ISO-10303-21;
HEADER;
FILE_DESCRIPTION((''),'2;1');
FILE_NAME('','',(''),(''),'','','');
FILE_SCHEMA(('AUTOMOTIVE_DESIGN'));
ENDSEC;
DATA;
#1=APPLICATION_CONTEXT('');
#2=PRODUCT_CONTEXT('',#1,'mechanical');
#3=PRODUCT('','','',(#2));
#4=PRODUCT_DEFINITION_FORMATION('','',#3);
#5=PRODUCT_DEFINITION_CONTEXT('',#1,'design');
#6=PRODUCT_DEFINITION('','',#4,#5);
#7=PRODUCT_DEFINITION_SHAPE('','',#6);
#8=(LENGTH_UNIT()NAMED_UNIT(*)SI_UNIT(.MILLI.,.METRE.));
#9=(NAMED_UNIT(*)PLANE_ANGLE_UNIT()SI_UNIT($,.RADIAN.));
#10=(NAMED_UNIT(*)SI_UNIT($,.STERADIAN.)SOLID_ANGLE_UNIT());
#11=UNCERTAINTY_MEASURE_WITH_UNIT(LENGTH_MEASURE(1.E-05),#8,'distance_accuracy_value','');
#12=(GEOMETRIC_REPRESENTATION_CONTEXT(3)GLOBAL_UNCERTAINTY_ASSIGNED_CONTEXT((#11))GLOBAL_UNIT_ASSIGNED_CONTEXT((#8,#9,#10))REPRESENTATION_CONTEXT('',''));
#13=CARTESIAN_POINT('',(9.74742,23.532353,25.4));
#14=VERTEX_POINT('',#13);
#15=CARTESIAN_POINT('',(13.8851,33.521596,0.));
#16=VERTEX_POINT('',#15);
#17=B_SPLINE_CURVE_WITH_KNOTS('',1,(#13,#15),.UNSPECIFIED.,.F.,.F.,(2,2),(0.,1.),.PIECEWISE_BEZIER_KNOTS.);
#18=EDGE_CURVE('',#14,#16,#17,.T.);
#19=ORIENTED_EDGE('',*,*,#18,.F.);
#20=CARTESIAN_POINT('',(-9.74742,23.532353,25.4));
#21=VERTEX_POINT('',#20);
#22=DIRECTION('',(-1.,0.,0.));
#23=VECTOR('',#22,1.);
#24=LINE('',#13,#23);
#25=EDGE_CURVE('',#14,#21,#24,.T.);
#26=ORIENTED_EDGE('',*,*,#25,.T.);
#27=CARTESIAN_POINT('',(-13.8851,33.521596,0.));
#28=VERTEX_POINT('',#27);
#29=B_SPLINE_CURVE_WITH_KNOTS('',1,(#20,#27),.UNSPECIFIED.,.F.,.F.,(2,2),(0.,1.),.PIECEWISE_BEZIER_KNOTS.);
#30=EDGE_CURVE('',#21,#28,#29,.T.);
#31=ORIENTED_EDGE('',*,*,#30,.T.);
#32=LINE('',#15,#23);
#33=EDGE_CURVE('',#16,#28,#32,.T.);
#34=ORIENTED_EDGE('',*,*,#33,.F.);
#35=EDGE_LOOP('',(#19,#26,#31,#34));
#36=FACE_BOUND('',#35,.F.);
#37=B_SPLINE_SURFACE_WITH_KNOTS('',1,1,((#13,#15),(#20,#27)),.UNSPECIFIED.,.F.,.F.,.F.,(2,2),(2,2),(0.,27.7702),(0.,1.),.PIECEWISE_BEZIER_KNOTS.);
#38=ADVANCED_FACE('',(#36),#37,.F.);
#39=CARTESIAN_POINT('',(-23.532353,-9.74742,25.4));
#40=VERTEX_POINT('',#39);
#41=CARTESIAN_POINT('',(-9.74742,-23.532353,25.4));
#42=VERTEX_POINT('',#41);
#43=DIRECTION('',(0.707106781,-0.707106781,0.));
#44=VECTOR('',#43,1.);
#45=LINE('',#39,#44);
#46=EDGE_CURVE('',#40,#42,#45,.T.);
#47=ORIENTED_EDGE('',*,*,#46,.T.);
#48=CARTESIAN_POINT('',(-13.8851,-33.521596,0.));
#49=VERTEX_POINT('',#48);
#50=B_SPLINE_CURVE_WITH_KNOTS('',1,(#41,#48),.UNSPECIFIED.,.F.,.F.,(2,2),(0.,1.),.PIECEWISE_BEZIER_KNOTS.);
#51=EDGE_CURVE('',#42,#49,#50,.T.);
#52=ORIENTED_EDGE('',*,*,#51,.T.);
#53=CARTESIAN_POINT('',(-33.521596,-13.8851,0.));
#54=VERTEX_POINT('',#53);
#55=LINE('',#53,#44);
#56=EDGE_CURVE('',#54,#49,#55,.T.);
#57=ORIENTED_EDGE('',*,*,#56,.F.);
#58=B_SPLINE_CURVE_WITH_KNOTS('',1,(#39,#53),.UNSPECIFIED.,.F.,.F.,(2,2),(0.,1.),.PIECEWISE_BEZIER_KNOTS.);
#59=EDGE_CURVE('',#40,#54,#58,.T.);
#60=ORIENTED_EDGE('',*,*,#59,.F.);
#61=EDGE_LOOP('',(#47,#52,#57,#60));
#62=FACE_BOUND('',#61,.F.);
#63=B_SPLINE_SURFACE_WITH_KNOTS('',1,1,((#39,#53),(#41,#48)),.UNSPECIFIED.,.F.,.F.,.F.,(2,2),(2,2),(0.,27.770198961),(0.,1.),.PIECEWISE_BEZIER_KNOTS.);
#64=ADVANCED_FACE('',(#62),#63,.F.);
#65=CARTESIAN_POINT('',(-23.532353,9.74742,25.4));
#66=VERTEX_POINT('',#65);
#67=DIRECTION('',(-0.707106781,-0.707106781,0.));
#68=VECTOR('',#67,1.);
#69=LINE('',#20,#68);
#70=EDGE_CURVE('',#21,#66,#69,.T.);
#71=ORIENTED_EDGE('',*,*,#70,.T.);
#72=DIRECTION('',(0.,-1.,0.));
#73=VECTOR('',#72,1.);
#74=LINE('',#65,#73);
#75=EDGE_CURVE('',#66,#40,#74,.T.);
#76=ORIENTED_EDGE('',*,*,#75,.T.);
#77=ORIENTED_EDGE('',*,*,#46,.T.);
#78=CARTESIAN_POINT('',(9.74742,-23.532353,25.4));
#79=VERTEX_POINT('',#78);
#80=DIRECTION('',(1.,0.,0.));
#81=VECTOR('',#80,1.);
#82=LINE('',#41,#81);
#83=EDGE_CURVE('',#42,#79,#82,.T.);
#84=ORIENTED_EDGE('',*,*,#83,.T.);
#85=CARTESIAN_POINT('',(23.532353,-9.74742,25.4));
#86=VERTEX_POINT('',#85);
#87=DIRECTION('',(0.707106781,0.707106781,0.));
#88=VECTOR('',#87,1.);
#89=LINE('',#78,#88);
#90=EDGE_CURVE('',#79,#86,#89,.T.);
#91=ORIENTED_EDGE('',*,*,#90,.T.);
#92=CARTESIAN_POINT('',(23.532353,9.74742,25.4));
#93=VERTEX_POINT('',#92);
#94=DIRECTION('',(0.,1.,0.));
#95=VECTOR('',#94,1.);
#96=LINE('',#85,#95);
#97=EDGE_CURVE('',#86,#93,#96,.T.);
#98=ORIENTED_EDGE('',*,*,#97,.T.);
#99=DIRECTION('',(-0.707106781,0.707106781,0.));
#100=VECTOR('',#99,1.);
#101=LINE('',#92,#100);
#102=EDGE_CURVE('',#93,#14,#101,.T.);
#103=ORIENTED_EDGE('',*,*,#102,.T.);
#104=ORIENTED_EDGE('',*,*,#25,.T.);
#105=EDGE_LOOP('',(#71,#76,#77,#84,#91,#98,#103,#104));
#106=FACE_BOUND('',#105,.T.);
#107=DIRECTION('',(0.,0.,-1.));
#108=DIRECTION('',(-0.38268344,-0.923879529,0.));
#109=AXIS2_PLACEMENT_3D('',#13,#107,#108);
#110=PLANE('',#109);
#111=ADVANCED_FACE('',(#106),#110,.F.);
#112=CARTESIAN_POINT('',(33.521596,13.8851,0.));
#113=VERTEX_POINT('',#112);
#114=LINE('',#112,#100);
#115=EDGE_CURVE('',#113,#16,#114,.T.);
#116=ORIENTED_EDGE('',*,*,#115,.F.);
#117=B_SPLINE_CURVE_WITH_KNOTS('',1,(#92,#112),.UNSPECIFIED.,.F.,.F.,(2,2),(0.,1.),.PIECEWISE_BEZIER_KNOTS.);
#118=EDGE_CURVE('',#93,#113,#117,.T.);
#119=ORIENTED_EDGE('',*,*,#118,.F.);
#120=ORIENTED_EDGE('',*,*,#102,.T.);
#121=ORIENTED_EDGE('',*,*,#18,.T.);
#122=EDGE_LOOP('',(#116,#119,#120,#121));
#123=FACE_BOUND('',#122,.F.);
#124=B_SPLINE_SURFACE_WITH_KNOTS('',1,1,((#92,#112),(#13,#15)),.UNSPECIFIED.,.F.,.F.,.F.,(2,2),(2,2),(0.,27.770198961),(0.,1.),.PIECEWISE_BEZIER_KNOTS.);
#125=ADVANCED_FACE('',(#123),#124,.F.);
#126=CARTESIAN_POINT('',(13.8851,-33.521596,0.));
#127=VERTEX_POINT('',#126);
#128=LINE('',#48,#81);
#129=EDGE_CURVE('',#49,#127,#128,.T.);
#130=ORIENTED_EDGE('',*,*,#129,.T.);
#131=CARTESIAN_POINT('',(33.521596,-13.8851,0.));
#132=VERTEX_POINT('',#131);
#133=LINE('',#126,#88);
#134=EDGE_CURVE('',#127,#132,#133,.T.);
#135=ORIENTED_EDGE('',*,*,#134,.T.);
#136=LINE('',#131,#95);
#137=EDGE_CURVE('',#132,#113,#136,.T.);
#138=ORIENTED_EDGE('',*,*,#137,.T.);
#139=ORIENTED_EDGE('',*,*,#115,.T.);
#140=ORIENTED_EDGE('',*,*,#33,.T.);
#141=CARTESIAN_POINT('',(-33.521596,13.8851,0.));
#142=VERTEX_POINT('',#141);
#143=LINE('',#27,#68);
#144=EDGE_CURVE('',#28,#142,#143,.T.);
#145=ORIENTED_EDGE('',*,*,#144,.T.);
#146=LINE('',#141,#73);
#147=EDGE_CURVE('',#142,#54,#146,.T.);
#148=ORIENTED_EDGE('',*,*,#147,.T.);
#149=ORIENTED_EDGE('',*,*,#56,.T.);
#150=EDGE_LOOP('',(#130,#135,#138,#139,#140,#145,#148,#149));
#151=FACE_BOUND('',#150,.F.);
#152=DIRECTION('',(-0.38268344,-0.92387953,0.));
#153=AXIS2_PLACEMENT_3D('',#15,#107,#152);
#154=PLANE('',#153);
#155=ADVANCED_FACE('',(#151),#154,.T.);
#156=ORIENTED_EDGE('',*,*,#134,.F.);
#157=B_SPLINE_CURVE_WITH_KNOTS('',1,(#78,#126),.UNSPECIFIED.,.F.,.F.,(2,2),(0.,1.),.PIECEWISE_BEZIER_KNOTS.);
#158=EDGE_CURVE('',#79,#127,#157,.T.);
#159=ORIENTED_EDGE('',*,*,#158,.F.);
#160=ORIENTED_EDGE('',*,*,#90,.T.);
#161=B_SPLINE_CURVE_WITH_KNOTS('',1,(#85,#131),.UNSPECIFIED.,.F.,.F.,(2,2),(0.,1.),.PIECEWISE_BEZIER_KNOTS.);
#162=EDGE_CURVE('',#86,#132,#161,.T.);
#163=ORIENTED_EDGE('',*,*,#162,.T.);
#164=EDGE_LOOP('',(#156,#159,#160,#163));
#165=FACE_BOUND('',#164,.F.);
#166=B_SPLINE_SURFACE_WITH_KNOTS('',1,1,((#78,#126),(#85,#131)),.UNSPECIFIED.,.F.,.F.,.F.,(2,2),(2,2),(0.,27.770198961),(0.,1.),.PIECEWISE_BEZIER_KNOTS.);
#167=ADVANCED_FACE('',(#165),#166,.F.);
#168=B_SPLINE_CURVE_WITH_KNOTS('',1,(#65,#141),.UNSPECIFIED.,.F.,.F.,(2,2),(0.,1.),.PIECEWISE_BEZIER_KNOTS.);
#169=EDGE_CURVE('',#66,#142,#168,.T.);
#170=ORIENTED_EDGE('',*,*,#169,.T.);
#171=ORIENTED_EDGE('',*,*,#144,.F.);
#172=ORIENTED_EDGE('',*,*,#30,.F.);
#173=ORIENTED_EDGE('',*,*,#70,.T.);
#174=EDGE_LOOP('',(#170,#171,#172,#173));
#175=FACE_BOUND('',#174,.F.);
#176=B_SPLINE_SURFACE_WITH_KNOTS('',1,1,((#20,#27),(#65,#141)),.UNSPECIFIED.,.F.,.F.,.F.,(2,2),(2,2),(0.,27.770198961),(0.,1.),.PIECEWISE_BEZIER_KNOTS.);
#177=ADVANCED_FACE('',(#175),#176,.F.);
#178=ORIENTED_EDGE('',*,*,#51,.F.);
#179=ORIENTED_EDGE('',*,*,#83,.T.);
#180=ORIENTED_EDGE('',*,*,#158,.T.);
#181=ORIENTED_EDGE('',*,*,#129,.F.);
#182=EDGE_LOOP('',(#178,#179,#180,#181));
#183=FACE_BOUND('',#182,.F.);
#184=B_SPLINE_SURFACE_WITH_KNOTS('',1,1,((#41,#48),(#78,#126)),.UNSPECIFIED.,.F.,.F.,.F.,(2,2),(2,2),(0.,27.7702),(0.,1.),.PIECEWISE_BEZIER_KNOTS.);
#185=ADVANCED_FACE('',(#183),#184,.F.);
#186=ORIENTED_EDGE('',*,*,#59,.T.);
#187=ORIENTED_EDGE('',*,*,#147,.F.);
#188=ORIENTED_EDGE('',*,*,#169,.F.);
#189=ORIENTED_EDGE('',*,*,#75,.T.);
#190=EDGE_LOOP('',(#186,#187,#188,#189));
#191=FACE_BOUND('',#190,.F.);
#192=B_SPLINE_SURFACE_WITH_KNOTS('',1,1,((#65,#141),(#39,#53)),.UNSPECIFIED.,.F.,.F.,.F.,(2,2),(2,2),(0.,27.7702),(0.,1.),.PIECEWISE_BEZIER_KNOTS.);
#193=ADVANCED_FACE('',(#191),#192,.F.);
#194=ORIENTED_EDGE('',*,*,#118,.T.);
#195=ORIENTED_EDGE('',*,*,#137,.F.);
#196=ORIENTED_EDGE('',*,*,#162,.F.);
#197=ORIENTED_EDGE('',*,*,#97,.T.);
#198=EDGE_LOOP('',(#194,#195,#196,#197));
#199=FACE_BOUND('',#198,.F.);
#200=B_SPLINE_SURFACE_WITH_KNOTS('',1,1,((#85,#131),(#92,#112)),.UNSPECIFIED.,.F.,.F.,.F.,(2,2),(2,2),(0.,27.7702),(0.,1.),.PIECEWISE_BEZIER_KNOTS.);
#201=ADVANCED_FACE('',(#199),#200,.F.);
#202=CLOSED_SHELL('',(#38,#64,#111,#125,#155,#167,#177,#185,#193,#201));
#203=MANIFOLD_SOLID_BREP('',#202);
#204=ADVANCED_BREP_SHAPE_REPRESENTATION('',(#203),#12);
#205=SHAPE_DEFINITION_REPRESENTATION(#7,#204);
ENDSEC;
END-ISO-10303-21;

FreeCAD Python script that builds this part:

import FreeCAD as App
import Part
import Sketcher

doc = App.newDocument("Part")
body = doc.addObject("PartDesign::Body", "Body")

sketch1 = body.newObject("Sketcher::SketchObject", "Sketch")
sketch1.AttachmentSupport = (doc.getObject("XY_Plane"), [""])
sketch1.MapMode = "FlatFace"
sketch1.AttachmentOffset = App.Placement(App.Vector(0, 0, 25.4), App.Rotation())
sketch1.addGeometry([
    Part.LineSegment(App.Vector(9.74742, 23.532353, 0), App.Vector(-9.74742, 23.532353, 0)),
    Part.LineSegment(App.Vector(-9.74742, 23.532353, 0), App.Vector(-23.532353, 9.74742, 0)),
    Part.LineSegment(App.Vector(-23.532353, 9.74742, 0), App.Vector(-23.532353, -9.74742, 0)),
    Part.LineSegment(App.Vector(-23.532353, -9.74742, 0), App.Vector(-9.74742, -23.532353, 0)),
    Part.LineSegment(App.Vector(-9.74742, -23.532353, 0), App.Vector(9.74742, -23.532353, 0)),
    Part.LineSegment(App.Vector(9.74742, -23.532353, 0), App.Vector(23.532353, -9.74742, 0)),
    Part.LineSegment(App.Vector(23.532353, -9.74742, 0), App.Vector(23.532353, 9.74742, 0)),
    Part.LineSegment(App.Vector(23.532353, 9.74742, 0), App.Vector(9.74742, 23.532353, 0)),
], False)
sketch1.addConstraint([
    Sketcher.Constraint("Coincident", 0, 2, 1, 1),
    Sketcher.Constraint("Coincident", 1, 2, 2, 1),
    Sketcher.Constraint("Coincident", 2, 2, 3, 1),
    Sketcher.Constraint("Coincident", 3, 2, 4, 1),
    Sketcher.Constraint("Coincident", 4, 2, 5, 1),
    Sketcher.Constraint("Coincident", 5, 2, 6, 1),
    Sketcher.Constraint("Coincident", 6, 2, 7, 1),
    Sketcher.Constraint("Coincident", 7, 2, 0, 1),
    Sketcher.Constraint("Horizontal", 0),
    Sketcher.Constraint("Vertical", 2),
    Sketcher.Constraint("Horizontal", 4),
    Sketcher.Constraint("Vertical", 6),
    Sketcher.Constraint("Symmetric", 0, 2, 4, 2, -1, 1),
    Sketcher.Constraint("Symmetric", 1, 2, 5, 2, -1, 1),
    Sketcher.Constraint("Perpendicular", 1, 3),
    Sketcher.Constraint("Perpendicular", 5, 7),
    Sketcher.Constraint("Horizontal", 2, 2, 5, 2),
    Sketcher.Constraint("Horizontal", 1, 2, 6, 2),
    Sketcher.Constraint("Vertical", 0, 2, 3, 2),
    Sketcher.Constraint("Equal", 4, 2),
    Sketcher.Constraint("DistanceX", 0, 2, 0, 1, 19.49484),
    Sketcher.Constraint("Distance", 1, 19.494839),
])

sketch2 = body.newObject("Sketcher::SketchObject", "Sketch001")
sketch2.AttachmentSupport = (doc.getObject("XY_Plane"), [""])
sketch2.MapMode = "FlatFace"
sketch2.addGeometry([
    Part.LineSegment(App.Vector(13.8851, 33.521596, 0), App.Vector(-13.8851, 33.521596, 0)),
    Part.LineSegment(App.Vector(-13.8851, 33.521596, 0), App.Vector(-33.521596, 13.8851, 0)),
    Part.LineSegment(App.Vector(-33.521596, 13.8851, 0), App.Vector(-33.521596, -13.8851, 0)),
    Part.LineSegment(App.Vector(-33.521596, -13.8851, 0), App.Vector(-13.8851, -33.521596, 0)),
    Part.LineSegment(App.Vector(-13.8851, -33.521596, 0), App.Vector(13.8851, -33.521596, 0)),
    Part.LineSegment(App.Vector(13.8851, -33.521596, 0), App.Vector(33.521596, -13.8851, 0)),
    Part.LineSegment(App.Vector(33.521596, -13.8851, 0), App.Vector(33.521596, 13.8851, 0)),
    Part.LineSegment(App.Vector(33.521596, 13.8851, 0), App.Vector(13.8851, 33.521596, 0)),
], False)
sketch2.addConstraint([
    Sketcher.Constraint("Coincident", 0, 2, 1, 1),
    Sketcher.Constraint("Coincident", 1, 2, 2, 1),
    Sketcher.Constraint("Coincident", 2, 2, 3, 1),
    Sketcher.Constraint("Coincident", 3, 2, 4, 1),
    Sketcher.Constraint("Coincident", 4, 2, 5, 1),
    Sketcher.Constraint("Coincident", 5, 2, 6, 1),
    Sketcher.Constraint("Coincident", 6, 2, 7, 1),
    Sketcher.Constraint("Coincident", 7, 2, 0, 1),
    Sketcher.Constraint("Horizontal", 0),
    Sketcher.Constraint("Vertical", 2),
    Sketcher.Constraint("Horizontal", 4),
    Sketcher.Constraint("Vertical", 6),
    Sketcher.Constraint("Symmetric", 0, 2, 4, 2, -1, 1),
    Sketcher.Constraint("Symmetric", 1, 2, 5, 2, -1, 1),
    Sketcher.Constraint("Perpendicular", 1, 3),
    Sketcher.Constraint("Perpendicular", 5, 7),
    Sketcher.Constraint("Horizontal", 2, 2, 5, 2),
    Sketcher.Constraint("Horizontal", 1, 2, 6, 2),
    Sketcher.Constraint("Vertical", 0, 2, 3, 2),
    Sketcher.Constraint("Equal", 4, 2),
    Sketcher.Constraint("DistanceX", 0, 2, 0, 1, 27.7702),
    Sketcher.Constraint("Distance", 1, 27.770199),
])

additiveloft = body.newObject("PartDesign::AdditiveLoft", "AdditiveLoft")
additiveloft.Profile = sketch1
additiveloft.Sections = [sketch2]

doc.recompute()
